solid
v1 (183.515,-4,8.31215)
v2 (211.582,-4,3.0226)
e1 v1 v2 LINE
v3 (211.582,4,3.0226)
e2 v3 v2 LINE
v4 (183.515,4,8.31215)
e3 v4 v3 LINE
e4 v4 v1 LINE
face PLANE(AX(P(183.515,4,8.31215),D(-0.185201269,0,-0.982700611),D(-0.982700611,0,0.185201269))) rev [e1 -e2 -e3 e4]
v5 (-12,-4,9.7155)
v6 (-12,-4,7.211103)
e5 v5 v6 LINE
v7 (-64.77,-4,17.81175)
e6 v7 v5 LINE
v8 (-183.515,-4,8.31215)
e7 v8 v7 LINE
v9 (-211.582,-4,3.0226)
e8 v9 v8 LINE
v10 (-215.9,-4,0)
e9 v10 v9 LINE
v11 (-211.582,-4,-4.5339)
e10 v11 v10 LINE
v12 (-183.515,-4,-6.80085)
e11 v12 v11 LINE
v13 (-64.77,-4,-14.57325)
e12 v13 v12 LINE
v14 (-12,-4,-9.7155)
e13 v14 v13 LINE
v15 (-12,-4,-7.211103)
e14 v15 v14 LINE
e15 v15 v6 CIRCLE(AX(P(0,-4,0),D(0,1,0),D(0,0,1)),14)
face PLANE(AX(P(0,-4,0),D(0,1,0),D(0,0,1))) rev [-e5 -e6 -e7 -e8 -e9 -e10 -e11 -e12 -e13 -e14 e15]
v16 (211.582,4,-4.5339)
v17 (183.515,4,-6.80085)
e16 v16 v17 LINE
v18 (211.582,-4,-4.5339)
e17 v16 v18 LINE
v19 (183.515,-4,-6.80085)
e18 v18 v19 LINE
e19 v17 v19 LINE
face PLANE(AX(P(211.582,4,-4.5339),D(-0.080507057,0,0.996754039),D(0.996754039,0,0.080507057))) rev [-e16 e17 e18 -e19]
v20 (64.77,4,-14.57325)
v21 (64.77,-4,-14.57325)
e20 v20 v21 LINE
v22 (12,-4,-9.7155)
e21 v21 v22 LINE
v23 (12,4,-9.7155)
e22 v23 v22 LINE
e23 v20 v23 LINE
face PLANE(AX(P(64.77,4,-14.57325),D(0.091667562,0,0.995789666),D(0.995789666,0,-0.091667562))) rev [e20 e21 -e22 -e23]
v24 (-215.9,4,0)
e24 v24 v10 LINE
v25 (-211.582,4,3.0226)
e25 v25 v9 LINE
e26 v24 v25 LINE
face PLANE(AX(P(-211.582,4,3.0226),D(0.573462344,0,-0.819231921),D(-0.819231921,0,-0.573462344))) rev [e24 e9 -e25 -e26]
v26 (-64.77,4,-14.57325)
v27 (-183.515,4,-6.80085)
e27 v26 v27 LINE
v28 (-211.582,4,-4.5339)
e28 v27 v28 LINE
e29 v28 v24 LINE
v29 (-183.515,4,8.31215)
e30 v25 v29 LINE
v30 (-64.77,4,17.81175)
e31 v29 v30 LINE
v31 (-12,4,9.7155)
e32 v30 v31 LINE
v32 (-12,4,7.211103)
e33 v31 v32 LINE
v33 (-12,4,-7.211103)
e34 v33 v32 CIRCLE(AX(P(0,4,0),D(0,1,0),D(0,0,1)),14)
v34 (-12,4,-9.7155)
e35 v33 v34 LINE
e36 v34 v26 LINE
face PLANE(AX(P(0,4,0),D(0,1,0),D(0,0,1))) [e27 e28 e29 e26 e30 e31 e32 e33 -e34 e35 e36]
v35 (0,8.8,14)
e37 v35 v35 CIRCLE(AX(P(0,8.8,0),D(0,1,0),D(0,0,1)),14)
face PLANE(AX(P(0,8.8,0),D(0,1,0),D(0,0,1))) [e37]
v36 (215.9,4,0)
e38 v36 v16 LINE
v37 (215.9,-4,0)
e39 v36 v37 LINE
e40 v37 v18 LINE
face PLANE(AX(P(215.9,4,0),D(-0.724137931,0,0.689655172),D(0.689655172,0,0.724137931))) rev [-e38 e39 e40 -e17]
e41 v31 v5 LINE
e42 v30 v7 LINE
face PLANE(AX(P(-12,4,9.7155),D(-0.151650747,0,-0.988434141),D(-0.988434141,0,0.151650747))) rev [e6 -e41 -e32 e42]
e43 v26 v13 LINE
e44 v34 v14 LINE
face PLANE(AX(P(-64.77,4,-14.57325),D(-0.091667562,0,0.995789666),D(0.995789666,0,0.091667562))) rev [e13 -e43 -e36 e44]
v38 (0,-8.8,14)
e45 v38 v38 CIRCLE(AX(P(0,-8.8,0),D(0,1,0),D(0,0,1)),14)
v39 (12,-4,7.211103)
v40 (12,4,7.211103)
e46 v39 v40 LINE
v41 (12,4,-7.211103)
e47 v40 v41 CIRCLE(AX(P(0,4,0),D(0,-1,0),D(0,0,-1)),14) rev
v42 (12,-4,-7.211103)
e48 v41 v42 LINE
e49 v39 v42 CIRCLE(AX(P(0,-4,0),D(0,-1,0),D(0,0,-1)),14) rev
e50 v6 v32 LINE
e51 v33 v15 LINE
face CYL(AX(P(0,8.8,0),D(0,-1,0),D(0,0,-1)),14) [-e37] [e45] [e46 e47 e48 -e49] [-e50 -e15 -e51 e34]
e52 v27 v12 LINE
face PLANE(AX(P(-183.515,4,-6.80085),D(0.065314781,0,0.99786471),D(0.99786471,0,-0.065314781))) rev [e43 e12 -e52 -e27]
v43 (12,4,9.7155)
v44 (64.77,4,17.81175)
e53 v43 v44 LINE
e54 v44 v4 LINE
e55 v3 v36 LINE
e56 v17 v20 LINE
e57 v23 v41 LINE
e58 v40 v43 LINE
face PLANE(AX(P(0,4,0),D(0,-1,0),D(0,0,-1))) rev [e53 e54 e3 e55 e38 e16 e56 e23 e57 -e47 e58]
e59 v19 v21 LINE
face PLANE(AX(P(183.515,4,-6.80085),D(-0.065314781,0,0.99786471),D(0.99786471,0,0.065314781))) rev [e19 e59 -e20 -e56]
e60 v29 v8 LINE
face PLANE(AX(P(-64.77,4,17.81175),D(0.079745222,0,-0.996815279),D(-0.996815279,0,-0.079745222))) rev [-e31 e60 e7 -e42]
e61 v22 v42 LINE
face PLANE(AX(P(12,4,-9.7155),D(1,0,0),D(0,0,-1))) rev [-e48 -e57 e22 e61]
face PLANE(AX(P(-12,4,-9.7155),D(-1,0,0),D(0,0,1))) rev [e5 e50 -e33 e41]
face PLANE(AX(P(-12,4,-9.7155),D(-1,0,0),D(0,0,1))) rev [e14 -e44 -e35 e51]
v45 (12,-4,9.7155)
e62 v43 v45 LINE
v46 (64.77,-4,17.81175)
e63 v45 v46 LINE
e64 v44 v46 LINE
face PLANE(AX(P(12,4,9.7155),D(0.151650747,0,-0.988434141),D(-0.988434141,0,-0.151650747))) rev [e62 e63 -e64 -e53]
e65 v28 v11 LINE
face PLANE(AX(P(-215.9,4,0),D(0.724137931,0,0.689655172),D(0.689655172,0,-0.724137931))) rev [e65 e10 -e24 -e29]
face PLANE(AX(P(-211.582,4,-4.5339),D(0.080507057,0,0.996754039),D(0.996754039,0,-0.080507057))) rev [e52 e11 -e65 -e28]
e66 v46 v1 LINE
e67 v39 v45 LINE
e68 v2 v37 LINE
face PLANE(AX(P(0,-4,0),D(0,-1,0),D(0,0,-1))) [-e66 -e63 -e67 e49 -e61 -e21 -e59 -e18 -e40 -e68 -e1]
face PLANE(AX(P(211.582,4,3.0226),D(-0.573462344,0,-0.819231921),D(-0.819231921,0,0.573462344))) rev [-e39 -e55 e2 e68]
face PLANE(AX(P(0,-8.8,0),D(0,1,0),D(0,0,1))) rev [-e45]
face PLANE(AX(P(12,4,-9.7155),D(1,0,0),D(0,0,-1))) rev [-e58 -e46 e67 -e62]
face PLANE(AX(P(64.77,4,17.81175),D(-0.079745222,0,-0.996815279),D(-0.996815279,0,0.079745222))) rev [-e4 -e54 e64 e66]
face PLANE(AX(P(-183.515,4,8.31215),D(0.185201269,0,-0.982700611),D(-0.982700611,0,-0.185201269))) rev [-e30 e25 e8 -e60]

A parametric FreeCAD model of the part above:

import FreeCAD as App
import Part
import Sketcher
from FreeCAD import Vector

doc = App.newDocument("Part")
body = doc.addObject("PartDesign::Body", "Body")

sketch1 = body.newObject("Sketcher::SketchObject", "Sketch")
sketch1.AttachmentSupport = (doc.getObject("XZ_Plane"), [""])
sketch1.MapMode = "FlatFace"
sketch1.addGeometry([
    Part.LineSegment(Vector(12, 9.7155, 0), Vector(64.77, 17.81175, 0)),
    Part.LineSegment(Vector(64.77, 17.81175, 0), Vector(183.515, 8.31215, 0)),
    Part.LineSegment(Vector(183.515, 8.31215, 0), Vector(211.582, 3.0226, 0)),
    Part.LineSegment(Vector(211.582, 3.0226, 0), Vector(215.9, 0, 0)),
    Part.LineSegment(Vector(215.9, 0, 0), Vector(211.582, -4.5339, 0)),
    Part.LineSegment(Vector(211.582, -4.5339, 0), Vector(183.515, -6.80085, 0)),
    Part.LineSegment(Vector(183.515, -6.80085, 0), Vector(64.77, -14.57325, 0)),
    Part.LineSegment(Vector(64.77, -14.57325, 0), Vector(12, -9.7155, 0)),
    Part.LineSegment(Vector(12, -9.7155, 0), Vector(12, 9.7155, 0)),
], False)
sketch1.addConstraint([
    Sketcher.Constraint("Coincident", 0, 2, 1, 1),
    Sketcher.Constraint("Coincident", 1, 2, 2, 1),
    Sketcher.Constraint("Coincident", 2, 2, 3, 1),
    Sketcher.Constraint("Coincident", 3, 2, 4, 1),
    Sketcher.Constraint("Coincident", 4, 2, 5, 1),
    Sketcher.Constraint("Coincident", 5, 2, 6, 1),
    Sketcher.Constraint("Coincident", 6, 2, 7, 1),
    Sketcher.Constraint("Coincident", 7, 2, 8, 1),
    Sketcher.Constraint("Coincident", 8, 2, 0, 1),
    Sketcher.Constraint("Vertical", 8),
    Sketcher.Constraint("PointOnObject", 3, 2, -1),
    Sketcher.Constraint("Vertical", 2, 2, 4, 2),
    Sketcher.Constraint("Vertical", 1, 2, 5, 2),
    Sketcher.Constraint("Vertical", 0, 2, 6, 2),
    Sketcher.Constraint("DistanceX", -1, 1, 7, 2, 12.0),
    Sketcher.Constraint("DistanceX", -1, 1, 3, 2, 215.9),
    Sketcher.Constraint("DistanceY", 8, 1, 8, 2, 19.431),
    Sketcher.Constraint("DistanceX", -1, 1, 0, 2, 64.77),
    Sketcher.Constraint("DistanceX", -1, 1, 1, 2, 183.515),
    Sketcher.Constraint("DistanceX", -1, 1, 2, 2, 211.582),
    Sketcher.Constraint("DistanceY", 5, 2, 1, 2, 15.113),
    Sketcher.Constraint("DistanceY", 6, 2, 0, 2, 32.385),
    Sketcher.Constraint("Distance", 4, 6.2611),
    Sketcher.Constraint("Distance", 5, 28.158401),
    Sketcher.Constraint("DistanceY", -1, 1, 2, 2, 3.0226),
    Sketcher.Constraint("DistanceY", 7, 2, -1, 1, 9.7155),
    Sketcher.Constraint("DistanceY", 1, 2, 0, 2, 9.4996),
])
pad1 = body.newObject("PartDesign::Pad", "Pad")
pad1.Profile = sketch1
pad1.Length = 8
pad1.Midplane = True
body2 = doc.addObject("PartDesign::Body", "Body001")

sketch2 = body2.newObject("Sketcher::SketchObject", "Sketch001")
sketch2.AttachmentSupport = (doc.getObject("XZ_Plane001"), [""])
sketch2.MapMode = "FlatFace"
sketch2.addGeometry([
    Part.LineSegment(Vector(-64.77, 17.81175, 0), Vector(-12, 9.7155, 0)),
    Part.LineSegment(Vector(-12, 9.7155, 0), Vector(-12, -9.7155, 0)),
    Part.LineSegment(Vector(-12, -9.7155, 0), Vector(-64.77, -14.57325, 0)),
    Part.LineSegment(Vector(-64.77, -14.57325, 0), Vector(-183.515, -6.80085, 0)),
    Part.LineSegment(Vector(-183.515, -6.80085, 0), Vector(-211.582, -4.5339, 0)),
    Part.LineSegment(Vector(-211.582, -4.5339, 0), Vector(-215.9, 0, 0)),
    Part.LineSegment(Vector(-215.9, 0, 0), Vector(-211.582, 3.0226, 0)),
    Part.LineSegment(Vector(-211.582, 3.0226, 0), Vector(-183.515, 8.31215, 0)),
    Part.LineSegment(Vector(-183.515, 8.31215, 0), Vector(-64.77, 17.81175, 0)),
], False)
sketch2.addConstraint([
    Sketcher.Constraint("Coincident", 0, 2, 1, 1),
    Sketcher.Constraint("Coincident", 1, 2, 2, 1),
    Sketcher.Constraint("Coincident", 2, 2, 3, 1),
    Sketcher.Constraint("Coincident", 3, 2, 4, 1),
    Sketcher.Constraint("Coincident", 4, 2, 5, 1),
    Sketcher.Constraint("Coincident", 5, 2, 6, 1),
    Sketcher.Constraint("Coincident", 6, 2, 7, 1),
    Sketcher.Constraint("Coincident", 7, 2, 8, 1),
    Sketcher.Constraint("Coincident", 8, 2, 0, 1),
    Sketcher.Constraint("Vertical", 1),
    Sketcher.Constraint("PointOnObject", 5, 2, -1),
    Sketcher.Constraint("Vertical", 4, 2, 6, 2),
    Sketcher.Constraint("Vertical", 3, 2, 7, 2),
    Sketcher.Constraint("Vertical", 2, 2, 8, 2),
    Sketcher.Constraint("DistanceX", 0, 2, -1, 1, 12.0),
    Sketcher.Constraint("DistanceX", 5, 2, -1, 1, 215.9),
    Sketcher.Constraint("DistanceY", 1, 2, 1, 1, 19.431),
    Sketcher.Constraint("DistanceX", 2, 2, -1, 1, 64.77),
    Sketcher.Constraint("DistanceX", 3, 2, -1, 1, 183.515),
    Sketcher.Constraint("DistanceX", 4, 2, -1, 1, 211.582),
    Sketcher.Constraint("DistanceY", 3, 2, 7, 2, 15.113),
    Sketcher.Constraint("DistanceY", 2, 2, 8, 2, 32.385),
    Sketcher.Constraint("Distance", 4, 28.158401),
    Sketcher.Constraint("Distance", 5, 6.2611),
    Sketcher.Constraint("DistanceY", -1, 1, 0, 2, 9.7155),
    Sketcher.Constraint("DistanceY", -1, 1, 6, 2, 3.0226),
    Sketcher.Constraint("DistanceY", 2, 2, 3, 2, 7.7724),
])
pad2 = body2.newObject("PartDesign::Pad", "Pad001")
pad2.Profile = sketch2
pad2.Length = 8
pad2.Midplane = True
body.AllowCompound = True
doc.recompute()

boolean = body.newObject("PartDesign::Boolean", "Boolean")
boolean.Type = "Fuse"
boolean.addObjects([body2])

sketch3 = body.newObject("Sketcher::SketchObject", "Sketch002")
sketch3.AttachmentSupport = (doc.getObject("XZ_Plane"), [""])
sketch3.MapMode = "FlatFace"
sketch3.addGeometry(Part.Circle(Vector(0, 0, 0), Vector(0, 0, 1), 14), False)
sketch3.addConstraint([
    Sketcher.Constraint("Coincident", 0, 3, -1, 1),
    Sketcher.Constraint("Diameter", 0, 28.0),
])
pad3 = body.newObject("PartDesign::Pad", "Pad002")
pad3.Profile = sketch3
pad3.Length = 17.6
pad3.Midplane = True

doc.recompute()
